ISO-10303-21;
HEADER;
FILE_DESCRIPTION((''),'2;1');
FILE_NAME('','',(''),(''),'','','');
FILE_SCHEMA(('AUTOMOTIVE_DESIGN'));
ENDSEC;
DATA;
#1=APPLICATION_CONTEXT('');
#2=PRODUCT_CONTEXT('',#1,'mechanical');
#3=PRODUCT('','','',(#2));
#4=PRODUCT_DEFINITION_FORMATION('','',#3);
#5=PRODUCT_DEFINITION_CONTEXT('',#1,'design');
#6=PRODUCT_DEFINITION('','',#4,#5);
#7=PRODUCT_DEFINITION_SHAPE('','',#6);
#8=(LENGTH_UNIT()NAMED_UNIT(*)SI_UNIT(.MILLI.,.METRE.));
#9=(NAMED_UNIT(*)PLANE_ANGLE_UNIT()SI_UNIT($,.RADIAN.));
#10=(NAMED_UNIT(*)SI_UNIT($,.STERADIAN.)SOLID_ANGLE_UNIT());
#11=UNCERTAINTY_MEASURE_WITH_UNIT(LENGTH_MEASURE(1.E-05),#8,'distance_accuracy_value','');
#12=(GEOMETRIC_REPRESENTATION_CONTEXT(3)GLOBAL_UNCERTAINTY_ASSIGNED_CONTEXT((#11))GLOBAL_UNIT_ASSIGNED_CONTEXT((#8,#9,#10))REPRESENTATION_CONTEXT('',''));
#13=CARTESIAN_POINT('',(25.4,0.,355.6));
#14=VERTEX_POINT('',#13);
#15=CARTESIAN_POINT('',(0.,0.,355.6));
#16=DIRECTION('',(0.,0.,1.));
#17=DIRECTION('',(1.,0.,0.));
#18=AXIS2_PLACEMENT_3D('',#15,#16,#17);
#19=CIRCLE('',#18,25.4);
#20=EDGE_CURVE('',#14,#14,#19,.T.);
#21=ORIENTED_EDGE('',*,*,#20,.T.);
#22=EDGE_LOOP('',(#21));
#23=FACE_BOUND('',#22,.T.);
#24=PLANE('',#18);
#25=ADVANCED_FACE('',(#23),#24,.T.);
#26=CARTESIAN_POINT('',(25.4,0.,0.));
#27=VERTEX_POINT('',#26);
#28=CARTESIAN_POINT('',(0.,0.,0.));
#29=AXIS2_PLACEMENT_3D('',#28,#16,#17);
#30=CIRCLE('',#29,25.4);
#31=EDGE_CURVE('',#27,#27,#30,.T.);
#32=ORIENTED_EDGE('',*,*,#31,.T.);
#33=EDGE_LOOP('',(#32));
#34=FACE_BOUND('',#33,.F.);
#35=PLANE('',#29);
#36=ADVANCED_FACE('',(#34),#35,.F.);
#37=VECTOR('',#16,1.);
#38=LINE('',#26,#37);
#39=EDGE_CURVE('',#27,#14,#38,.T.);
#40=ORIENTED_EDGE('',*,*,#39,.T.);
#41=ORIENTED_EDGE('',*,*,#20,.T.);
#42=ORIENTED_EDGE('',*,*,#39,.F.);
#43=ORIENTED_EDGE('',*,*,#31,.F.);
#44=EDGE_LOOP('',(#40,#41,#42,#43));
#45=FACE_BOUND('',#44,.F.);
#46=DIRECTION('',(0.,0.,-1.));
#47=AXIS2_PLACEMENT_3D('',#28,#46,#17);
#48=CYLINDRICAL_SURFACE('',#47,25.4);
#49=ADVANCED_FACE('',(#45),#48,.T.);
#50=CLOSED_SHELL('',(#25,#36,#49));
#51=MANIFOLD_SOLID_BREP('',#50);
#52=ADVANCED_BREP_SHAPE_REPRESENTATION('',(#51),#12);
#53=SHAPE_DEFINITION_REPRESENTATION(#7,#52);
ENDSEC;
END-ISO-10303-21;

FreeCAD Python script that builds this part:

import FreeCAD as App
import Part
import Sketcher

V = App.Vector
Q = App.Units.Quantity

doc = App.newDocument("Part")
body = doc.addObject("PartDesign::Body", "Body")

# Sketch on XY plane
sketch1 = body.newObject("Sketcher::SketchObject", "Sketch")
sketch1.AttachmentSupport = (doc.getObject("XY_Plane"), [""])
sketch1.MapMode = "FlatFace"
sketch1.addGeometry(Part.Circle(V(0, 0, 0), V(0, 0, 1), 25.4), False)
sketch1.addConstraint(Sketcher.Constraint("Coincident", 0, 3, -1, 1))
sketch1.addConstraint(Sketcher.Constraint("Diameter", 0, Q("2 in")))
pad1 = body.newObject("PartDesign::Pad", "Pad")
pad1.Profile = sketch1
pad1.Length = Q("14 in")

doc.recompute()
